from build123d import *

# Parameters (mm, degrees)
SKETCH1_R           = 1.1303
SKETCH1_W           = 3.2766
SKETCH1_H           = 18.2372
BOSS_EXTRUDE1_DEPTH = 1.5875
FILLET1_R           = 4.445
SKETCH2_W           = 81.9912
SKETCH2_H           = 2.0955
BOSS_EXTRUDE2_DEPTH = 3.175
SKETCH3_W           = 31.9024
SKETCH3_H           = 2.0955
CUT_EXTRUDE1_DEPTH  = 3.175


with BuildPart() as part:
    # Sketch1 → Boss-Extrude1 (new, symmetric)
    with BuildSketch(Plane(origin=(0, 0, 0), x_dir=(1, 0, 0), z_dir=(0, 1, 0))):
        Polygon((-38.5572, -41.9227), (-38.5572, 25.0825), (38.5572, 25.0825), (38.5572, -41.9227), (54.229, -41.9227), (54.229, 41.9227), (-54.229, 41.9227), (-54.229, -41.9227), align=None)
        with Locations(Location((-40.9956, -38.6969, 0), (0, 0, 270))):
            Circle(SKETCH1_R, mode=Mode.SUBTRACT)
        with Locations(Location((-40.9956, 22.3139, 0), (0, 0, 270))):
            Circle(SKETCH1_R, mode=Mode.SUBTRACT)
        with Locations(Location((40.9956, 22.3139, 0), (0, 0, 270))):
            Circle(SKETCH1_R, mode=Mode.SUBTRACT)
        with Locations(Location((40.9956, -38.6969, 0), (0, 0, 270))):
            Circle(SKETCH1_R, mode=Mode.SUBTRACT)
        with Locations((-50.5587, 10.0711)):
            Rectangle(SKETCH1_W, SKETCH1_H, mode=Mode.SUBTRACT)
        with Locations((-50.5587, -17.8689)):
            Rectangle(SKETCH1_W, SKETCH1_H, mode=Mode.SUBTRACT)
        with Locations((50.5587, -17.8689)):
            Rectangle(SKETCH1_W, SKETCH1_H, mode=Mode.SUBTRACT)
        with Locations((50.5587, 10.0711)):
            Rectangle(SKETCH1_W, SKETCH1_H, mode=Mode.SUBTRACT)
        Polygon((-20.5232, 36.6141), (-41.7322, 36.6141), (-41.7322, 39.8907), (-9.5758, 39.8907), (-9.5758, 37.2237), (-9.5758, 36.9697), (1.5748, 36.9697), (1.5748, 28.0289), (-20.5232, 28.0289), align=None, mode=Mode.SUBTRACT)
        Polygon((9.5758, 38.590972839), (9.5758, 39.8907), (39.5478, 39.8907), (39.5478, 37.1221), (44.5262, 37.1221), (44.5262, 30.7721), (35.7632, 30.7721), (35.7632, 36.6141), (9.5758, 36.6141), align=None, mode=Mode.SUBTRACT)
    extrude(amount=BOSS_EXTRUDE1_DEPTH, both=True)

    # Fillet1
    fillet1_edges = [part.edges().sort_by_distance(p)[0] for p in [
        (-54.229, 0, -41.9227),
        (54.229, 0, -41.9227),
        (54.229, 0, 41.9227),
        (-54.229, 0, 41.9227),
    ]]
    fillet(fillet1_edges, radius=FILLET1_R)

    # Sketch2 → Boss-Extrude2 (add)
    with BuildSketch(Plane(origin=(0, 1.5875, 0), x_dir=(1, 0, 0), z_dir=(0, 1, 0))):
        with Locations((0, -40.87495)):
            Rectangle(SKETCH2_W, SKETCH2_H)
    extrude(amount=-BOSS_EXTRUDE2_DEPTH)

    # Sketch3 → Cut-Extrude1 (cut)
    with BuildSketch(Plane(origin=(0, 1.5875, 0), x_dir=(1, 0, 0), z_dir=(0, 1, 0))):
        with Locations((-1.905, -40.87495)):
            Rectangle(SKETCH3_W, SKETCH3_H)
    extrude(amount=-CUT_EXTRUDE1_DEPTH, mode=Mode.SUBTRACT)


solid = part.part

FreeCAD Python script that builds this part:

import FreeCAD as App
import Part
import Sketcher
Q = App.Units.Quantity


def edges_at(feature, points):
    """Names of the edges that pass closest to the given points."""
    edges = feature.Shape.Edges
    near = lambda p: min(range(len(edges)), key=lambda i: edges[i].distToShape(Part.Vertex(*p))[0])
    return sorted({f"Edge{near(p) + 1}" for p in points})

doc = App.newDocument("Part")
body = doc.addObject("PartDesign::Body", "Body")

sketch1 = body.newObject("Sketcher::SketchObject", "Sketch")
sketch1.AttachmentSupport = (doc.getObject("XZ_Plane"), [""])
sketch1.MapMode = "FlatFace"
sketch1.addGeometry([
    Part.LineSegment(App.Vector(-38.6, 41.9, 0), App.Vector(-38.6, -25.1, 0)),
    Part.LineSegment(App.Vector(-38.6, -25.1, 0), App.Vector(38.6, -25.1, 0)),
    Part.LineSegment(App.Vector(38.6, -25.1, 0), App.Vector(38.6, 41.9, 0)),
    Part.LineSegment(App.Vector(38.6, 41.9, 0), App.Vector(54.2, 41.9, 0)),
    Part.LineSegment(App.Vector(54.2, 41.9, 0), App.Vector(54.2, -41.9, 0)),
    Part.LineSegment(App.Vector(54.2, -41.9, 0), App.Vector(-54.2, -41.9, 0)),
    Part.LineSegment(App.Vector(-54.2, -41.9, 0), App.Vector(-54.2, 41.9, 0)),
    Part.LineSegment(App.Vector(-54.2, 41.9, 0), App.Vector(-38.6, 41.9, 0)),
    Part.Circle(App.Vector(-41, 38.7, 0), App.Vector(0, 0, 1), 1.1),
    Part.LineSegment(App.Vector(-48.9, 27, 0), App.Vector(-52.2, 27, 0)),
    Part.LineSegment(App.Vector(-52.2, 27, 0), App.Vector(-52.2, 8.8, 0)),
    Part.LineSegment(App.Vector(-52.2, 8.8, 0), App.Vector(-48.9, 8.8, 0)),
    Part.LineSegment(App.Vector(-48.9, 8.8, 0), App.Vector(-48.9, 27, 0)),
    Part.Circle(App.Vector(41, 38.7, 0), App.Vector(0, 0, 1), 1.1),
    Part.LineSegment(App.Vector(52.2, 27, 0), App.Vector(48.9, 27, 0)),
    Part.LineSegment(App.Vector(48.9, 27, 0), App.Vector(48.9, 8.8, 0)),
    Part.LineSegment(App.Vector(48.9, 8.8, 0), App.Vector(52.2, 8.8, 0)),
    Part.LineSegment(App.Vector(52.2, 8.8, 0), App.Vector(52.2, 27, 0)),
    Part.LineSegment(App.Vector(-48.9, -1, 0), App.Vector(-52.2, -1, 0)),
    Part.LineSegment(App.Vector(-52.2, -1, 0), App.Vector(-52.2, -19.2, 0)),
    Part.LineSegment(App.Vector(-52.2, -19.2, 0), App.Vector(-48.9, -19.2, 0)),
    Part.LineSegment(App.Vector(-48.9, -19.2, 0), App.Vector(-48.9, -1, 0)),
    Part.Circle(App.Vector(-41, -22.3, 0), App.Vector(0, 0, 1), 1.1),
    Part.LineSegment(App.Vector(-20.5, -28, 0), App.Vector(-20.5, -36.6, 0)),
    Part.LineSegment(App.Vector(-20.5, -36.6, 0), App.Vector(-41.7, -36.6, 0)),
    Part.LineSegment(App.Vector(-41.7, -36.6, 0), App.Vector(-41.7, -39.9, 0)),
    Part.LineSegment(App.Vector(-41.7, -39.9, 0), App.Vector(-9.6, -39.9, 0)),
    Part.LineSegment(App.Vector(-9.6, -39.9, 0), App.Vector(-9.6, -37, 0)),
    Part.LineSegment(App.Vector(-9.6, -37, 0), App.Vector(1.6, -37, 0)),
    Part.LineSegment(App.Vector(1.6, -37, 0), App.Vector(1.6, -28, 0)),
    Part.LineSegment(App.Vector(1.6, -28, 0), App.Vector(-20.5, -28, 0)),
    Part.LineSegment(App.Vector(52.2, -1, 0), App.Vector(48.9, -1, 0)),
    Part.LineSegment(App.Vector(48.9, -1, 0), App.Vector(48.9, -19.2, 0)),
    Part.LineSegment(App.Vector(48.9, -19.2, 0), App.Vector(52.2, -19.2, 0)),
    Part.LineSegment(App.Vector(52.2, -19.2, 0), App.Vector(52.2, -1, 0)),
    Part.Circle(App.Vector(41, -22.3, 0), App.Vector(0, 0, 1), 1.1),
    Part.LineSegment(App.Vector(9.6, -36.6, 0), App.Vector(9.6, -39.9, 0)),
    Part.LineSegment(App.Vector(9.6, -39.9, 0), App.Vector(39.5, -39.9, 0)),
    Part.LineSegment(App.Vector(39.5, -39.9, 0), App.Vector(39.5, -37.1, 0)),
    Part.LineSegment(App.Vector(39.5, -37.1, 0), App.Vector(44.5, -37.1, 0)),
    Part.LineSegment(App.Vector(44.5, -37.1, 0), App.Vector(44.5, -30.8, 0)),
    Part.LineSegment(App.Vector(44.5, -30.8, 0), App.Vector(35.8, -30.8, 0)),
    Part.LineSegment(App.Vector(35.8, -30.8, 0), App.Vector(35.8, -36.6, 0)),
    Part.LineSegment(App.Vector(35.8, -36.6, 0), App.Vector(9.6, -36.6, 0)),
], False)
sketch1.addConstraint([
    Sketcher.Constraint("Coincident", 0, 2, 1, 1),
    Sketcher.Constraint("Coincident", 1, 2, 2, 1),
    Sketcher.Constraint("Coincident", 2, 2, 3, 1),
    Sketcher.Constraint("Coincident", 3, 2, 4, 1),
    Sketcher.Constraint("Coincident", 4, 2, 5, 1),
    Sketcher.Constraint("Coincident", 5, 2, 6, 1),
    Sketcher.Constraint("Coincident", 6, 2, 7, 1),
    Sketcher.Constraint("Coincident", 7, 2, 0, 1),
    Sketcher.Constraint("Coincident", 9, 2, 10, 1),
    Sketcher.Constraint("Coincident", 10, 2, 11, 1),
    Sketcher.Constraint("Coincident", 11, 2, 12, 1),
    Sketcher.Constraint("Coincident", 12, 2, 9, 1),
    Sketcher.Constraint("Coincident", 14, 2, 15, 1),
    Sketcher.Constraint("Coincident", 15, 2, 16, 1),
    Sketcher.Constraint("Coincident", 16, 2, 17, 1),
    Sketcher.Constraint("Coincident", 17, 2, 14, 1),
    Sketcher.Constraint("Coincident", 18, 2, 19, 1),
    Sketcher.Constraint("Coincident", 19, 2, 20, 1),
    Sketcher.Constraint("Coincident", 20, 2, 21, 1),
    Sketcher.Constraint("Coincident", 21, 2, 18, 1),
    Sketcher.Constraint("Coincident", 23, 2, 24, 1),
    Sketcher.Constraint("Coincident", 24, 2, 25, 1),
    Sketcher.Constraint("Coincident", 25, 2, 26, 1),
    Sketcher.Constraint("Coincident", 26, 2, 27, 1),
    Sketcher.Constraint("Coincident", 27, 2, 28, 1),
    Sketcher.Constraint("Coincident", 28, 2, 29, 1),
    Sketcher.Constraint("Coincident", 29, 2, 30, 1),
    Sketcher.Constraint("Coincident", 30, 2, 23, 1),
    Sketcher.Constraint("Coincident", 31, 2, 32, 1),
    Sketcher.Constraint("Coincident", 32, 2, 33, 1),
    Sketcher.Constraint("Coincident", 33, 2, 34, 1),
    Sketcher.Constraint("Coincident", 34, 2, 31, 1),
    Sketcher.Constraint("Coincident", 36, 2, 37, 1),
    Sketcher.Constraint("Coincident", 37, 2, 38, 1),
    Sketcher.Constraint("Coincident", 38, 2, 39, 1),
    Sketcher.Constraint("Coincident", 39, 2, 40, 1),
    Sketcher.Constraint("Coincident", 40, 2, 41, 1),
    Sketcher.Constraint("Coincident", 41, 2, 42, 1),
    Sketcher.Constraint("Coincident", 42, 2, 43, 1),
    Sketcher.Constraint("Coincident", 43, 2, 36, 1),
    Sketcher.Constraint("Vertical", 0),
    Sketcher.Constraint("Horizontal", 1),
    Sketcher.Constraint("Vertical", 2),
    Sketcher.Constraint("Horizontal", 3),
    Sketcher.Constraint("Vertical", 4),
    Sketcher.Constraint("Horizontal", 5),
    Sketcher.Constraint("Vertical", 6),
    Sketcher.Constraint("Horizontal", 7),
    Sketcher.Constraint("Horizontal", 9),
    Sketcher.Constraint("Vertical", 10),
    Sketcher.Constraint("Horizontal", 11),
    Sketcher.Constraint("Vertical", 12),
    Sketcher.Constraint("Horizontal", 14),
    Sketcher.Constraint("Vertical", 15),
    Sketcher.Constraint("Horizontal", 16),
    Sketcher.Constraint("Vertical", 17),
    Sketcher.Constraint("Horizontal", 18),
    Sketcher.Constraint("Vertical", 19),
    Sketcher.Constraint("Horizontal", 20),
    Sketcher.Constraint("Vertical", 21),
    Sketcher.Constraint("Vertical", 23),
    Sketcher.Constraint("Horizontal", 24),
    Sketcher.Constraint("Vertical", 25),
    Sketcher.Constraint("Horizontal", 26),
    Sketcher.Constraint("Vertical", 27),
    Sketcher.Constraint("Horizontal", 28),
    Sketcher.Constraint("Vertical", 29),
    Sketcher.Constraint("Horizontal", 30),
    Sketcher.Constraint("Horizontal", 31),
    Sketcher.Constraint("Vertical", 32),
    Sketcher.Constraint("Horizontal", 33),
    Sketcher.Constraint("Vertical", 34),
    Sketcher.Constraint("Vertical", 36),
    Sketcher.Constraint("Horizontal", 37),
    Sketcher.Constraint("Vertical", 38),
    Sketcher.Constraint("Horizontal", 39),
    Sketcher.Constraint("Vertical", 40),
    Sketcher.Constraint("Horizontal", 41),
    Sketcher.Constraint("Vertical", 42),
    Sketcher.Constraint("Horizontal", 43),
    Sketcher.Constraint("Equal", 8, 13),
    Sketcher.Constraint("Equal", 13, 22),
    Sketcher.Constraint("Equal", 22, 35),
    Sketcher.Constraint("Symmetric", 3, 2, 5, 2, -1, 1),
    Sketcher.Constraint("Symmetric", 8, 3, 13, 3, -2),
    Sketcher.Constraint("Symmetric", 22, 3, 35, 3, -2),
    Sketcher.Constraint("Symmetric", 2, 2, 7, 2, -2),
    Sketcher.Constraint("Symmetric", 12, 2, 14, 2, -2),
    Sketcher.Constraint("Symmetric", 10, 2, 16, 2, -2),
    Sketcher.Constraint("Symmetric", 21, 2, 31, 2, -2),
    Sketcher.Constraint("Symmetric", 19, 2, 33, 2, -2),
    Sketcher.Constraint("Symmetric", 26, 2, 36, 2, -2),
    Sketcher.Constraint("Horizontal", 24, 2, 42, 2),
    Sketcher.Constraint("Vertical", 8, 3, 22, 3),
    Sketcher.Constraint("Vertical", 10, 2, 18, 2),
    Sketcher.Constraint("Vertical", 12, 2, 20, 2),
    Sketcher.Constraint("Equal", 17, 19),
    Sketcher.Constraint("Equal", 33, 25),
    Sketcher.Constraint("Diameter", 8, Q("0.089 in")),
    Sketcher.Constraint("DistanceX", 5, 2, 5, 1, Q("4.27 in")),
    Sketcher.Constraint("DistanceX", 30, 2, 30, 1, Q("0.87 in")),
    Sketcher.Constraint("DistanceX", 37, 1, 37, 2, Q("1.18 in")),
    Sketcher.Constraint("DistanceY", 40, 1, 40, 2, Q("0.25 in")),
    Sketcher.Constraint("DistanceY", 42, 2, 42, 1, Q("0.23 in")),
    Sketcher.Constraint("DistanceY", 18, 2, 9, 2, Q("1.1 in")),
    Sketcher.Constraint("DistanceX", 1, 1, 1, 2, Q("3.036 in")),
    Sketcher.Constraint("DistanceX", 9, 2, 9, 1, Q("0.129 in")),
    Sketcher.Constraint("DistanceX", 24, 2, 24, 1, Q("0.835 in")),
    Sketcher.Constraint("DistanceX", 26, 1, 26, 2, Q("1.266 in")),
    Sketcher.Constraint("DistanceX", 39, 1, 39, 2, Q("0.196 in")),
    Sketcher.Constraint("DistanceX", 41, 2, 41, 1, Q("0.345 in")),
    Sketcher.Constraint("DistanceY", 0, 2, 0, 1, Q("2.638 in")),
    Sketcher.Constraint("DistanceY", 4, 2, 4, 1, Q("3.301 in")),
    Sketcher.Constraint("DistanceY", 10, 2, 10, 1, Q("0.718 in")),
    Sketcher.Constraint("DistanceY", 23, 2, 23, 1, Q("0.338 in")),
    Sketcher.Constraint("DistanceY", 27, 1, 27, 2, Q("0.115 in")),
    Sketcher.Constraint("DistanceX", 6, 2, 9, 2, Q("0.08 in")),
    Sketcher.Constraint("DistanceY", 0, 2, 9, 2, Q("2.05 in")),
    Sketcher.Constraint("DistanceX", 0, 2, 23, 2, Q("0.71 in")),
    Sketcher.Constraint("DistanceY", 5, 2, 25, 2, Q("0.08 in")),
    Sketcher.Constraint("DistanceX", 8, 3, -1, 1, Q("1.614 in")),
    Sketcher.Constraint("DistanceY", 22, 3, 8, 3, Q("2.402 in")),
    Sketcher.Constraint("DistanceY", 0, 2, 22, 3, Q("0.109 in")),
])
pad1 = body.newObject("PartDesign::Pad", "Pad")
pad1.Profile = sketch1
pad1.Length = Q("0.125 in")
pad1.Midplane = True
doc.recompute()

fillet = body.newObject("PartDesign::Fillet", "Fillet")
fillet.Base = (pad1, edges_at(pad1, [
    (-54.229, 0, -41.923),
    (54.229, 0, -41.923),
    (54.229, 0, 41.923),
    (-54.229, 0, 41.923),
]))
fillet.Radius = Q("0.175 in")

sketch2 = body.newObject("Sketcher::SketchObject", "Sketch001")
sketch2.AttachmentSupport = (doc.getObject("XZ_Plane"), [""])
sketch2.MapMode = "FlatFace"
sketch2.AttachmentOffset = App.Placement(App.Vector(0, 0, -0.0625 * 25.4), App.Rotation())
sketch2.addGeometry([
    Part.LineSegment(App.Vector(-41, 39.8, 0), App.Vector(-41, 41.9, 0)),
    Part.LineSegment(App.Vector(-41, 41.9, 0), App.Vector(41, 41.9, 0)),
    Part.LineSegment(App.Vector(41, 41.9, 0), App.Vector(41, 39.8, 0)),
    Part.LineSegment(App.Vector(41, 39.8, 0), App.Vector(-41, 39.8, 0)),
], False)
sketch2.addConstraint([
    Sketcher.Constraint("Coincident", 0, 2, 1, 1),
    Sketcher.Constraint("Coincident", 1, 2, 2, 1),
    Sketcher.Constraint("Coincident", 2, 2, 3, 1),
    Sketcher.Constraint("Coincident", 3, 2, 0, 1),
    Sketcher.Constraint("Vertical", 0),
    Sketcher.Constraint("Horizontal", 1),
    Sketcher.Constraint("Vertical", 2),
    Sketcher.Constraint("Horizontal", 3),
    Sketcher.Constraint("DistanceX", 1, 1, 1, 2, Q("3.228 in")),
    Sketcher.Constraint("DistanceY", 0, 1, 0, 2, Q("0.0825 in")),
    Sketcher.Constraint("DistanceX", 0, 2, -1, 1, Q("1.614 in")),
    Sketcher.Constraint("DistanceY", -1, 1, 2, 2, Q("1.568 in")),
])
pad2 = body.newObject("PartDesign::Pad", "Pad001")
pad2.Profile = sketch2
pad2.Length = Q("0.125 in")

sketch3 = body.newObject("Sketcher::SketchObject", "Sketch002")
sketch3.AttachmentSupport = (doc.getObject("XZ_Plane"), [""])
sketch3.MapMode = "FlatFace"
sketch3.AttachmentOffset = App.Placement(App.Vector(0, 0, -0.0625 * 25.4), App.Rotation())
sketch3.addGeometry([
    Part.LineSegment(App.Vector(-17.9, 39.8, 0), App.Vector(-17.9, 41.9, 0)),
    Part.LineSegment(App.Vector(-17.9, 41.9, 0), App.Vector(14, 41.9, 0)),
    Part.LineSegment(App.Vector(14, 41.9, 0), App.Vector(14, 39.8, 0)),
    Part.LineSegment(App.Vector(14, 39.8, 0), App.Vector(-17.9, 39.8, 0)),
], False)
sketch3.addConstraint([
    Sketcher.Constraint("Coincident", 0, 2, 1, 1),
    Sketcher.Constraint("Coincident", 1, 2, 2, 1),
    Sketcher.Constraint("Coincident", 2, 2, 3, 1),
    Sketcher.Constraint("Coincident", 3, 2, 0, 1),
    Sketcher.Constraint("Vertical", 0),
    Sketcher.Constraint("Horizontal", 1),
    Sketcher.Constraint("Vertical", 2),
    Sketcher.Constraint("Horizontal", 3),
    Sketcher.Constraint("DistanceX", 1, 1, 1, 2, Q("1.256 in")),
    Sketcher.Constraint("DistanceY", 0, 1, 0, 2, Q("0.0825 in")),
    Sketcher.Constraint("DistanceX", 0, 2, -1, 1, Q("0.703 in")),
    Sketcher.Constraint("DistanceY", -1, 1, 2, 2, Q("1.568 in")),
])
pocket1 = body.newObject("PartDesign::Pocket", "Pocket")
pocket1.Profile = sketch3
pocket1.Length = Q("0.125 in")
pocket1.Reversed = True

doc.recompute()
